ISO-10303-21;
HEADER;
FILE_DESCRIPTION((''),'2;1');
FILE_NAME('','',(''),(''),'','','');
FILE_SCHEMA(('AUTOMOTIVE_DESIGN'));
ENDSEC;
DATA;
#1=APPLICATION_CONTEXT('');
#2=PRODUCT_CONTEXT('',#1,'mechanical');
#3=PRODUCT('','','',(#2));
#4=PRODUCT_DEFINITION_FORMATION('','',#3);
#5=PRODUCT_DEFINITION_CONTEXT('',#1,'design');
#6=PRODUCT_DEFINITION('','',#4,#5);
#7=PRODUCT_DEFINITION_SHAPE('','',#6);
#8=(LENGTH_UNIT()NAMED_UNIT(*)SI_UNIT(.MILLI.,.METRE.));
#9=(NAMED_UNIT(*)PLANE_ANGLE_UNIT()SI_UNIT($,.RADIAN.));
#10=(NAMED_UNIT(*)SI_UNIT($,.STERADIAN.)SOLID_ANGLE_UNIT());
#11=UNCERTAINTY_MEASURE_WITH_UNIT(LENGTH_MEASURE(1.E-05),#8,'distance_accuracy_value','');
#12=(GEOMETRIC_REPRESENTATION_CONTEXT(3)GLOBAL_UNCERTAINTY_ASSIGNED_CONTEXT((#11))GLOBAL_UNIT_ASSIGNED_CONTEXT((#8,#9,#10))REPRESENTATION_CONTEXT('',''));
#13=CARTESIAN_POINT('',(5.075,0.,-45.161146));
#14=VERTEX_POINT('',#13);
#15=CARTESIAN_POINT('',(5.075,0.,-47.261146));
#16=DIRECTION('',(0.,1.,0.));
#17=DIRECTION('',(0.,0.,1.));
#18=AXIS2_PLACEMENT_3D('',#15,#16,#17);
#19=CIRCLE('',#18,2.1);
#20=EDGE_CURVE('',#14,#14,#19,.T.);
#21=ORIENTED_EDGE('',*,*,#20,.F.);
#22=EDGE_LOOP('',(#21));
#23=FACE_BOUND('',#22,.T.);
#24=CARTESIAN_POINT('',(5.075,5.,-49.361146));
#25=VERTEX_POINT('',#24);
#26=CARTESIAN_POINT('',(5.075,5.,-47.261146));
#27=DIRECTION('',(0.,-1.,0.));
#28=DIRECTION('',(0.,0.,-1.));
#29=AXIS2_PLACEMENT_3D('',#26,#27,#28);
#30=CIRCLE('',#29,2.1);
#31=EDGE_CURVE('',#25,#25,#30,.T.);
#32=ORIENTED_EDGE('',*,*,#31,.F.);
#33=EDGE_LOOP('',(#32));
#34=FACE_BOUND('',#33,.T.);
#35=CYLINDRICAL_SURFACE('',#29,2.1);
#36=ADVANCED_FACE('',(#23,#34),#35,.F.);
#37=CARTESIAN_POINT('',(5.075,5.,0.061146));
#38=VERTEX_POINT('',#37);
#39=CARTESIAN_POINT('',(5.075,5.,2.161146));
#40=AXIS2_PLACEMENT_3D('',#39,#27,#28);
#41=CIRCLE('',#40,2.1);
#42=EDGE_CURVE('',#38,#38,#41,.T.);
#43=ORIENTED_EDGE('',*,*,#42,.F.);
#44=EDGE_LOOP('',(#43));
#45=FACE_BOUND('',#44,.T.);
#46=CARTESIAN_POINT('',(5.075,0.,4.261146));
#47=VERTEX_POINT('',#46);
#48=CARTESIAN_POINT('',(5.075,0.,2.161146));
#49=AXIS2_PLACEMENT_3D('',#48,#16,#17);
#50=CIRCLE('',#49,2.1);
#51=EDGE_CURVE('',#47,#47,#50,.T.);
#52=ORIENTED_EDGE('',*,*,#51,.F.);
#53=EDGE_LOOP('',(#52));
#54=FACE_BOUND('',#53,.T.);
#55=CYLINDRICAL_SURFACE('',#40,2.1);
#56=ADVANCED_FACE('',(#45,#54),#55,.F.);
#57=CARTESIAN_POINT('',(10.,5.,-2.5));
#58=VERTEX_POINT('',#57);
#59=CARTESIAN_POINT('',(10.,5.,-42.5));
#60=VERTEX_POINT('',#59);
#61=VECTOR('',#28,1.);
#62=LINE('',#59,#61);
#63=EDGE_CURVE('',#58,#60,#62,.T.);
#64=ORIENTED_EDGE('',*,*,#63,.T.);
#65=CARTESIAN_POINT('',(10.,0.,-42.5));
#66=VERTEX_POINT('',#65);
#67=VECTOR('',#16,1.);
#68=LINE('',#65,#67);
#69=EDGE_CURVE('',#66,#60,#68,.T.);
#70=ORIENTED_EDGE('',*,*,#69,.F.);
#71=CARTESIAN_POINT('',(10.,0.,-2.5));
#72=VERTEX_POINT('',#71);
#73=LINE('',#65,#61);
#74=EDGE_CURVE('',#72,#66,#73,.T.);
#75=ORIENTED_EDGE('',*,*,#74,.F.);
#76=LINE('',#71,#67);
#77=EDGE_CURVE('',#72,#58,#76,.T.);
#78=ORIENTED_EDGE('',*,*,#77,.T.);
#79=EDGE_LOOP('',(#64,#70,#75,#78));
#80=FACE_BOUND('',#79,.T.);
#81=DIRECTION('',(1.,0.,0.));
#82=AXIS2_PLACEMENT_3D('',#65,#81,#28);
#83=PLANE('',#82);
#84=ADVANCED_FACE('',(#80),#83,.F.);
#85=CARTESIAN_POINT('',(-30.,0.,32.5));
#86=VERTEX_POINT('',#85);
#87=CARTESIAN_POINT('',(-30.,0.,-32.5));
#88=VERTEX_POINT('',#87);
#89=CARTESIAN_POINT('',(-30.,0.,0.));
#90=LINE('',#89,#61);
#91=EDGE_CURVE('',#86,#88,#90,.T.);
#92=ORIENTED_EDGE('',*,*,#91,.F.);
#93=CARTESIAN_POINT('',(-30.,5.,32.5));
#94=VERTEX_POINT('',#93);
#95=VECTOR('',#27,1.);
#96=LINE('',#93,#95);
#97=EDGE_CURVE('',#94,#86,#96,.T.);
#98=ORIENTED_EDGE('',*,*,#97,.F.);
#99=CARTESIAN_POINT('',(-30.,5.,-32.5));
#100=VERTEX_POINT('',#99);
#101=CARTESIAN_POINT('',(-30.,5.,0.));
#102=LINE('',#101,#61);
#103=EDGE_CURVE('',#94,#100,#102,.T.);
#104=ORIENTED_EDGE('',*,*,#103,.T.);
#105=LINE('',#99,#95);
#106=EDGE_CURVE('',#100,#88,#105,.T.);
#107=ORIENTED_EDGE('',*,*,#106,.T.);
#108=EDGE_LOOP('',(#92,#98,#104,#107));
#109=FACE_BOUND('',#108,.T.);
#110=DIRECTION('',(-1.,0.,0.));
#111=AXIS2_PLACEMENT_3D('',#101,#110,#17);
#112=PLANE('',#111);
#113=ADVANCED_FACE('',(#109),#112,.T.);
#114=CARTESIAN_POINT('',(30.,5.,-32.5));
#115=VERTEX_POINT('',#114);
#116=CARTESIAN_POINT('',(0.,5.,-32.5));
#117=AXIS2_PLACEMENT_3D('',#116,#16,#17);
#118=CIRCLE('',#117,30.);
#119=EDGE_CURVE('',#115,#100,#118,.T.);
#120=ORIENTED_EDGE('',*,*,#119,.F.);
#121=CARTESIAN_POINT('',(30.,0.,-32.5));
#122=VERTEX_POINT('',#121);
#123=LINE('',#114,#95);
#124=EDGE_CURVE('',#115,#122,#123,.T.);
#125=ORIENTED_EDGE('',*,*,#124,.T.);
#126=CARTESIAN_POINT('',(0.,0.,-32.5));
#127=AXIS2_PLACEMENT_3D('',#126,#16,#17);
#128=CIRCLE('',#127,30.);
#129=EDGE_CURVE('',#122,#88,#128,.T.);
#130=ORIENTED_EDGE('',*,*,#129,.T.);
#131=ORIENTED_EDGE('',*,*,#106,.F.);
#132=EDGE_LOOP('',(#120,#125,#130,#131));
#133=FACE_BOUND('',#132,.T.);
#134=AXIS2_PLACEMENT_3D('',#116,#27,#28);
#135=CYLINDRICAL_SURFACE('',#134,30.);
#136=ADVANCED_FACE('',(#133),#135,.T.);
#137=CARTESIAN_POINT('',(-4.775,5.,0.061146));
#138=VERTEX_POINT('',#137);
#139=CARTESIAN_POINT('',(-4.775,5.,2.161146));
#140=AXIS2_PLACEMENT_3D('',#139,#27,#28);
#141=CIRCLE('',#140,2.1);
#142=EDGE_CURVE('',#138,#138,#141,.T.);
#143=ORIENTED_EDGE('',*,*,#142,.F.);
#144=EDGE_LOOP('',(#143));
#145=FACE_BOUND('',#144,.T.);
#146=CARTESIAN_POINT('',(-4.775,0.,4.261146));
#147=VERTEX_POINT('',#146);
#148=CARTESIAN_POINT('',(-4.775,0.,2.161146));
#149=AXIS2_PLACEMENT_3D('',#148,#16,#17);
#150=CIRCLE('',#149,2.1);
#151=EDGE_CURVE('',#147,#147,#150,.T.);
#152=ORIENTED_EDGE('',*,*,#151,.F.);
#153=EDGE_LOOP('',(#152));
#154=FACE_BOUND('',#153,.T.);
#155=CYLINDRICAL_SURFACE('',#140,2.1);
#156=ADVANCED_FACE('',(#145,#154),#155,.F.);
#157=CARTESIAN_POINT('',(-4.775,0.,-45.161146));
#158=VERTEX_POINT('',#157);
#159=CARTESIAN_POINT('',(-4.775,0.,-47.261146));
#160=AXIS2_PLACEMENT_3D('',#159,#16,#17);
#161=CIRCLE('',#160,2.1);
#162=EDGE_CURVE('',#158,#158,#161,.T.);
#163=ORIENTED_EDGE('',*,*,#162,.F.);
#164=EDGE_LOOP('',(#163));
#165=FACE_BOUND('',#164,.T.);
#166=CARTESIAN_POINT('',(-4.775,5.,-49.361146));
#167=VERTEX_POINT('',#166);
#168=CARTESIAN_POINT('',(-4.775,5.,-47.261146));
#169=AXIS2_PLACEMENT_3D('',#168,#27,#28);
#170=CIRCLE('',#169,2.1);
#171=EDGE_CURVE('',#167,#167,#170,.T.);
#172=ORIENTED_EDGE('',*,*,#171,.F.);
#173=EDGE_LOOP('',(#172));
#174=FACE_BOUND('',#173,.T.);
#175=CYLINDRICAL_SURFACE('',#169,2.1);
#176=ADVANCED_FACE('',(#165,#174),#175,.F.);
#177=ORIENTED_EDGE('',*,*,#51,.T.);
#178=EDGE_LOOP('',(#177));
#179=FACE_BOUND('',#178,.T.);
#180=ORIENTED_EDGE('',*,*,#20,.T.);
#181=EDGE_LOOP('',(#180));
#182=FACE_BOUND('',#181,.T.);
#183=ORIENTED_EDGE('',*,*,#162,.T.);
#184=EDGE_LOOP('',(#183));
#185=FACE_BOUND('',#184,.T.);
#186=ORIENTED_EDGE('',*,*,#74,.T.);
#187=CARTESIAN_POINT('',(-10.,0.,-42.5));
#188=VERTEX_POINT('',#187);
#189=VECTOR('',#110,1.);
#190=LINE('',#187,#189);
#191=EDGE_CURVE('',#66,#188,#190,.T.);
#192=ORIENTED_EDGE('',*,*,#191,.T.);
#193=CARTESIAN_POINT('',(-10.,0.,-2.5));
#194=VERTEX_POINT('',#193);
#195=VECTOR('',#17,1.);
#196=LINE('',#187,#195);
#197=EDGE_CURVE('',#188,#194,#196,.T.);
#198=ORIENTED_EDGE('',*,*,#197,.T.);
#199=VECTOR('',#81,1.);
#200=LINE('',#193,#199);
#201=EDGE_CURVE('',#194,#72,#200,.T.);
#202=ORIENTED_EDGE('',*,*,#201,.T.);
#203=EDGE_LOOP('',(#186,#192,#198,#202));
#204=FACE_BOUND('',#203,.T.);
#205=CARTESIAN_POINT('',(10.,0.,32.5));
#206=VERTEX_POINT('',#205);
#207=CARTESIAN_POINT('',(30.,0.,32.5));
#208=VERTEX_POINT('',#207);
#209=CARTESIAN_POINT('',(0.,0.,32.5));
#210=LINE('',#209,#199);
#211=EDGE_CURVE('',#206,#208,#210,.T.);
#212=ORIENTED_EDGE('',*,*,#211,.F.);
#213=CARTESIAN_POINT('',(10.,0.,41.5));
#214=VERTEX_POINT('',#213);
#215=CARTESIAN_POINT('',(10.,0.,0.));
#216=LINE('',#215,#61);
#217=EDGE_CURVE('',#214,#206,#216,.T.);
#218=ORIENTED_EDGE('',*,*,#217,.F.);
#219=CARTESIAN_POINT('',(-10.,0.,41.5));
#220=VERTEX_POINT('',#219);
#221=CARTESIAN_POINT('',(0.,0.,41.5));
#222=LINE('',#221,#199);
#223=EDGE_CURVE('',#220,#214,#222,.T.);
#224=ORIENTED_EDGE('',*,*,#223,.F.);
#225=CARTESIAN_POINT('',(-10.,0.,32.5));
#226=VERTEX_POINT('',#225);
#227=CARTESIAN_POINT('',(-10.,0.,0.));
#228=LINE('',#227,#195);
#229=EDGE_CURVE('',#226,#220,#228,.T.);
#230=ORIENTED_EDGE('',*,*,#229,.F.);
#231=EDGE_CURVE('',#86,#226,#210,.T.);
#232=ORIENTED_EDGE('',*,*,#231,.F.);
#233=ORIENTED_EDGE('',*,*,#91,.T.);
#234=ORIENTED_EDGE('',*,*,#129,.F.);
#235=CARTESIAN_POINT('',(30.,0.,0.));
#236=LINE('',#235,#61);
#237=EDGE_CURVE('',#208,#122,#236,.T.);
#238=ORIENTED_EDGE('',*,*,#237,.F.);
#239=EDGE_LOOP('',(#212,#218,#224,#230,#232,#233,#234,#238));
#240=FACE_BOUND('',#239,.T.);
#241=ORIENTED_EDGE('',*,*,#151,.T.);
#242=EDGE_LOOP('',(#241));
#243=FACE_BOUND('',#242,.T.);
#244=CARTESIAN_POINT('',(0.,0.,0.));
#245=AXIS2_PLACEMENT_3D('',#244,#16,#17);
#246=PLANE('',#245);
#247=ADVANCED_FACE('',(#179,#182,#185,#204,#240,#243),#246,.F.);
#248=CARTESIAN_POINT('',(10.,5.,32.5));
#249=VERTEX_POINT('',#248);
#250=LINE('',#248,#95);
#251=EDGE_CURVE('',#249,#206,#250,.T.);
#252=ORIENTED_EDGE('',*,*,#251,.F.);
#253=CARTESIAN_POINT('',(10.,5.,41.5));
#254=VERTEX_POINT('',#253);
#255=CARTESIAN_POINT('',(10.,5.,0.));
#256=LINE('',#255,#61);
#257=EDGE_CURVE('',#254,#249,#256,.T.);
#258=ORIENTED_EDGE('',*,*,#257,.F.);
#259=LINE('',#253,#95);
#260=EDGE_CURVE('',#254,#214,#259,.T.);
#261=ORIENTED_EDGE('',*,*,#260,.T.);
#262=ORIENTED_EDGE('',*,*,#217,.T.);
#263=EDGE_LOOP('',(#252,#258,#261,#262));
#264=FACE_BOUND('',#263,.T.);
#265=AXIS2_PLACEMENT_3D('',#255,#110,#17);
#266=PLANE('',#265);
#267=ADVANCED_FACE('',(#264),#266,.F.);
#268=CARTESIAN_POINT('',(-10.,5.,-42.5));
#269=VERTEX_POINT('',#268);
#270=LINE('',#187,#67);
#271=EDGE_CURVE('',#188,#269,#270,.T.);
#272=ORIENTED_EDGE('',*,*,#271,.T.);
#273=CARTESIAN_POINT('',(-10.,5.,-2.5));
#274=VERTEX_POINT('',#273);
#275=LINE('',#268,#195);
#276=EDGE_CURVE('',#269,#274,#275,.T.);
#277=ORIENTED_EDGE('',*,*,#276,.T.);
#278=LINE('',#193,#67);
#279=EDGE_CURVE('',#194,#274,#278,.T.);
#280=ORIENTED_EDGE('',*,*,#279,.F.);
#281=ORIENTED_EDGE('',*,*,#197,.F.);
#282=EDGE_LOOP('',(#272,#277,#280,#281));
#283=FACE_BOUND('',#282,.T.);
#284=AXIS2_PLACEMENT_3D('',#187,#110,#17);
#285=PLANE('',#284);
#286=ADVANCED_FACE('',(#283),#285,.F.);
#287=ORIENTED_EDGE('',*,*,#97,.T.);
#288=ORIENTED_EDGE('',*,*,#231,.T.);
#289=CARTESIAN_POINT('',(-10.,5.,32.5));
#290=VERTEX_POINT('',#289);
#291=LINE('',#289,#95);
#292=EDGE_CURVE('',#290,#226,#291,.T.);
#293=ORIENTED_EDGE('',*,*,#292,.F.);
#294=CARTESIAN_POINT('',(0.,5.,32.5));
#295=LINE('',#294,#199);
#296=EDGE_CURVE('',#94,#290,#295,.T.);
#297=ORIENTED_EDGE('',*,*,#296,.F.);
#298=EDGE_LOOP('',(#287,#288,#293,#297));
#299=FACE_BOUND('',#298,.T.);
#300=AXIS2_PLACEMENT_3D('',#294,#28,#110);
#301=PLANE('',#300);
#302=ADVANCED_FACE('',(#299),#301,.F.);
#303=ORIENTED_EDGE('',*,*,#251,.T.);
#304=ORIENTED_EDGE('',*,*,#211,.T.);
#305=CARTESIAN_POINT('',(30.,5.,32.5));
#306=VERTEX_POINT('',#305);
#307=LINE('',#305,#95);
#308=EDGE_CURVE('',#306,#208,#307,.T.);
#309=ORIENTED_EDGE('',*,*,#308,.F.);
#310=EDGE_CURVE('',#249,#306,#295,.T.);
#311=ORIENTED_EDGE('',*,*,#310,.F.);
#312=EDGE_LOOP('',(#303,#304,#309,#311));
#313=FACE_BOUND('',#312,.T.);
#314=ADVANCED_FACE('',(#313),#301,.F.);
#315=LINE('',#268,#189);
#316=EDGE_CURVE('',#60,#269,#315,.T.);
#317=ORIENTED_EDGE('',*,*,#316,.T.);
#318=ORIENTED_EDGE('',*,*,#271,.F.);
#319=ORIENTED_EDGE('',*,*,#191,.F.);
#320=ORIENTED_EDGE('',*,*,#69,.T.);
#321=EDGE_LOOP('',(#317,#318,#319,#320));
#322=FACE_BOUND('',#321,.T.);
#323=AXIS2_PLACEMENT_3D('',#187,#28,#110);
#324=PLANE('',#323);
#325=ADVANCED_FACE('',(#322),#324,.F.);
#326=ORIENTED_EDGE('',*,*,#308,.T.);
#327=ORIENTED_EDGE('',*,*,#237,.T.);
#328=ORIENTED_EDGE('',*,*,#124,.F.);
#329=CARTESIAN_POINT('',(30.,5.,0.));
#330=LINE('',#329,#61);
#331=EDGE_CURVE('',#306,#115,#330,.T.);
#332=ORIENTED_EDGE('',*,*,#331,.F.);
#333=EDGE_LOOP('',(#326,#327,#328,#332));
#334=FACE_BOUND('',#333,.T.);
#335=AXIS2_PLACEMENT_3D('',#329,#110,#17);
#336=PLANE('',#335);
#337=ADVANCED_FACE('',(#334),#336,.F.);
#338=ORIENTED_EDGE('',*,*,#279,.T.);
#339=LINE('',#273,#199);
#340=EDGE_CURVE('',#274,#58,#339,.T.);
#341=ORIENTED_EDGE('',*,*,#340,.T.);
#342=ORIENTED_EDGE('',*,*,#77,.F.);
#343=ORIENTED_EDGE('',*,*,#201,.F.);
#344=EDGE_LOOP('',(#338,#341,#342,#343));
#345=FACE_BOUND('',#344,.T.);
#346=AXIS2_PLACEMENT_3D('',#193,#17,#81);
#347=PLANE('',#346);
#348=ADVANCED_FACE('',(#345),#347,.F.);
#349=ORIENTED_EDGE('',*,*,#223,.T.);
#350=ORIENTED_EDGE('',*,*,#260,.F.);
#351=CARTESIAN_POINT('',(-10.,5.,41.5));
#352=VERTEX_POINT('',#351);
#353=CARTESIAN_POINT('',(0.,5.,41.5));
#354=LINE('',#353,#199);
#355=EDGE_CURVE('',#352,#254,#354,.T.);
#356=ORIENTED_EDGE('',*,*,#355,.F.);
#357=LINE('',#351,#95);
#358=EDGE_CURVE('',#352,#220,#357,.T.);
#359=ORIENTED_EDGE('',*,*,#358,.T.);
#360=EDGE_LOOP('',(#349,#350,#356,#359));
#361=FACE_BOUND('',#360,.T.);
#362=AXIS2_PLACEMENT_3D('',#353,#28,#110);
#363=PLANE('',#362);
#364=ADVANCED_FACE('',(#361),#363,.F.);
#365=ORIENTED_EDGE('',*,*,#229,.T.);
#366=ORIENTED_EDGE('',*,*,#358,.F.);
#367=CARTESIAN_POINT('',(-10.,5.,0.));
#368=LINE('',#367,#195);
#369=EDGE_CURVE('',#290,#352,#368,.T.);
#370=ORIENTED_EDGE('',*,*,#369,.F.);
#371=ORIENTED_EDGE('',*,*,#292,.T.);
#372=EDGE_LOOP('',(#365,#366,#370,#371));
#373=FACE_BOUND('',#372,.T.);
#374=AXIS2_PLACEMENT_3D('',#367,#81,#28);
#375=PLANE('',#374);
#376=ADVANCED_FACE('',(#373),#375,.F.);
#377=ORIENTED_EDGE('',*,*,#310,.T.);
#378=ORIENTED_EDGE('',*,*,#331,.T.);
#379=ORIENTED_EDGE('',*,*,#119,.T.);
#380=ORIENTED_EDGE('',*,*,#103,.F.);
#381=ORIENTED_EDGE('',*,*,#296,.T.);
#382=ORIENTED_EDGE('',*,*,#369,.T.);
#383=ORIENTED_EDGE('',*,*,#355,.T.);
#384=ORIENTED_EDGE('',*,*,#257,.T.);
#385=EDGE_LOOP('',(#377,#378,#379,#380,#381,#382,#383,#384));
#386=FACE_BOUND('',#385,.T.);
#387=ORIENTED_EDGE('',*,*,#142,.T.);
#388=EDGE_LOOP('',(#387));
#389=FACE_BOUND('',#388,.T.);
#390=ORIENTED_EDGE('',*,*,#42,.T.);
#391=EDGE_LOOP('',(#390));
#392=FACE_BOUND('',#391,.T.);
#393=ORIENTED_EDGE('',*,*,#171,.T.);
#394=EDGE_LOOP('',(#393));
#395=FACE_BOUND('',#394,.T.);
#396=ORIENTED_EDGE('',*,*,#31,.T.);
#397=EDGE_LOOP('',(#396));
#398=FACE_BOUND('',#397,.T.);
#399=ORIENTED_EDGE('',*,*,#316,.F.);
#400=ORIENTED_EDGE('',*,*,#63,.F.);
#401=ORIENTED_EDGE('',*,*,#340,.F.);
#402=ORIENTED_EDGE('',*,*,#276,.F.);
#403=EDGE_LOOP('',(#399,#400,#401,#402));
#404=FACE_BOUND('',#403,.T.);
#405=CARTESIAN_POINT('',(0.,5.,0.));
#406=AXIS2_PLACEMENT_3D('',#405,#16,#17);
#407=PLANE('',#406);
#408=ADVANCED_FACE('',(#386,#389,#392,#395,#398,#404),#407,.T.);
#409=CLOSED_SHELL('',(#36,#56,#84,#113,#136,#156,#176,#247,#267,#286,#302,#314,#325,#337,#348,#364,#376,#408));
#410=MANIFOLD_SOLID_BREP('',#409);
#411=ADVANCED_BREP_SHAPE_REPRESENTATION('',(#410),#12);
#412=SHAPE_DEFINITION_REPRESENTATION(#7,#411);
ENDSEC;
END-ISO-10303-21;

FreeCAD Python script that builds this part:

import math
import FreeCAD as App
import Part
import Sketcher
from FreeCAD import Vector

doc = App.newDocument("Part")
body = doc.addObject("PartDesign::Body", "Body")

# Sketch on XZ plane
sketch1 = doc.addObject("Sketcher::SketchObject", "Sketch")
body.addObject(sketch1)
sketch1.AttachmentSupport = (doc.XZ_Plane, [""])
sketch1.MapMode = "FlatFace"
sketch1.addGeometry([
    Part.LineSegment(Vector(-30, -32, 0), Vector(-30, 32, 0)),  # 0
    Part.LineSegment(Vector(-30, 32, 0), Vector(-10, 32, 0)),  # 1
    Part.LineSegment(Vector(-10, 32, 0), Vector(-10, 42, 0)),  # 2
    Part.LineSegment(Vector(-10, 42, 0), Vector(10, 42, 0)),  # 3
    Part.LineSegment(Vector(10, 42, 0), Vector(10, 32, 0)),  # 4
    Part.LineSegment(Vector(10, 32, 0), Vector(30, 32, 0)),  # 5
    Part.LineSegment(Vector(30, 32, 0), Vector(30, -32, 0)),  # 6
    Part.ArcOfCircle(Part.Circle(Vector(0, -32, 0), Vector(0, 0, 1), 30), math.radians(180), math.radians(360)),  # 7
], False)
sketch1.addConstraint([
    Sketcher.Constraint("Coincident", 0, 2, 1, 1),
    Sketcher.Constraint("Coincident", 1, 2, 2, 1),
    Sketcher.Constraint("Coincident", 2, 2, 3, 1),
    Sketcher.Constraint("Coincident", 3, 2, 4, 1),
    Sketcher.Constraint("Coincident", 4, 2, 5, 1),
    Sketcher.Constraint("Coincident", 5, 2, 6, 1),
    Sketcher.Constraint("Tangent", 6, 2, 7, 2),
    Sketcher.Constraint("Tangent", 7, 1, 0, 1),
    Sketcher.Constraint("Vertical", 0),
    Sketcher.Constraint("Horizontal", 1),
    Sketcher.Constraint("Vertical", 2),
    Sketcher.Constraint("Horizontal", 3),
    Sketcher.Constraint("Vertical", 4),
    Sketcher.Constraint("Horizontal", 5),
    Sketcher.Constraint("Vertical", 6),
    Sketcher.Constraint("Symmetric", 0, 2, 6, 2, -1, 1),
    Sketcher.Constraint("Symmetric", 1, 2, 4, 2, -2),
    Sketcher.Constraint("Equal", 1, 3),
    Sketcher.Constraint("Radius", 7, 30.0),
    Sketcher.Constraint("DistanceY", 0, 1, 0, 2, 65.0),
    Sketcher.Constraint("DistanceY", 2, 1, 2, 2, 9.0),
])
pad1 = doc.addObject("PartDesign::Pad", "Pad")
body.addObject(pad1)
pad1.Profile = sketch1
pad1.Length = 5
pad1.Reversed = True

# Sketch on XZ plane
sketch2 = doc.addObject("Sketcher::SketchObject", "Sketch001")
body.addObject(sketch2)
sketch2.AttachmentSupport = (doc.XZ_Plane, [""])
sketch2.MapMode = "FlatFace"
sketch2.AttachmentOffset = App.Placement(Vector(0, 0, -5), App.Rotation())
sketch2.addGeometry([
    Part.LineSegment(Vector(-10, -42, 0), Vector(-10, -2, 0)),
    Part.LineSegment(Vector(-10, -2, 0), Vector(10, -2, 0)),
    Part.LineSegment(Vector(10, -2, 0), Vector(10, -42, 0)),
    Part.LineSegment(Vector(10, -42, 0), Vector(-10, -42, 0)),
], False)
sketch2.addConstraint([
    Sketcher.Constraint("Coincident", 0, 2, 1, 1),
    Sketcher.Constraint("Coincident", 1, 2, 2, 1),
    Sketcher.Constraint("Coincident", 2, 2, 3, 1),
    Sketcher.Constraint("Coincident", 3, 2, 0, 1),
    Sketcher.Constraint("Vertical", 0),
    Sketcher.Constraint("Horizontal", 1),
    Sketcher.Constraint("Vertical", 2),
    Sketcher.Constraint("Horizontal", 3),
    Sketcher.Constraint("DistanceX", 1, 1, 1, 2, 20.0),
    Sketcher.Constraint("DistanceY", 0, 1, 0, 2, 40.0),
    Sketcher.Constraint("DistanceX", 0, 2, -1, 1, 10.0),
    Sketcher.Constraint("DistanceY", 0, 2, -1, 1, 2.5),
])
pocket1 = doc.addObject("PartDesign::Pocket", "Pocket")
body.addObject(pocket1)
pocket1.Profile = sketch2
pocket1.Type = "ThroughAll"
pocket1.Reversed = True

# Sketch on XZ plane
sketch3 = doc.addObject("Sketcher::SketchObject", "Sketch002")
body.addObject(sketch3)
sketch3.AttachmentSupport = (doc.XZ_Plane, [""])
sketch3.MapMode = "FlatFace"
sketch3.addGeometry([
    Part.Circle(Vector(-4.8, 2.2, 0), Vector(0, 0, 1), 2.1),
    Part.Circle(Vector(5.1, 2.2, 0), Vector(0, 0, 1), 2.1),
    Part.Circle(Vector(5.1, -47.3, 0), Vector(0, 0, 1), 2.1),
    Part.Circle(Vector(-4.8, -47.3, 0), Vector(0, 0, 1), 2.1),
], False)
sketch3.addConstraint([
    Sketcher.Constraint("Equal", 0, 1),
    Sketcher.Constraint("Equal", 1, 2),
    Sketcher.Constraint("Equal", 2, 3),
    Sketcher.Constraint("Horizontal", 0, 3, 1, 3),
    Sketcher.Constraint("Horizontal", 2, 3, 3, 3),
    Sketcher.Constraint("Vertical", 1, 3, 2, 3),
    Sketcher.Constraint("Vertical", 0, 3, 3, 3),
    Sketcher.Constraint("Diameter", 0, 4.2),
    Sketcher.Constraint("DistanceX", 0, 3, 1, 3, 9.85),
    Sketcher.Constraint("DistanceX", 0, 3, -1, 1, 4.775),
    Sketcher.Constraint("DistanceY", 2, 3, 1, 3, 49.422291),
    Sketcher.Constraint("DistanceY", -1, 1, 0, 3, 2.161146),
])
pocket2 = doc.addObject("PartDesign::Pocket", "Pocket001")
body.addObject(pocket2)
pocket2.Profile = sketch3
pocket2.Type = "ThroughAll"
pocket2.Midplane = True

doc.recompute()
